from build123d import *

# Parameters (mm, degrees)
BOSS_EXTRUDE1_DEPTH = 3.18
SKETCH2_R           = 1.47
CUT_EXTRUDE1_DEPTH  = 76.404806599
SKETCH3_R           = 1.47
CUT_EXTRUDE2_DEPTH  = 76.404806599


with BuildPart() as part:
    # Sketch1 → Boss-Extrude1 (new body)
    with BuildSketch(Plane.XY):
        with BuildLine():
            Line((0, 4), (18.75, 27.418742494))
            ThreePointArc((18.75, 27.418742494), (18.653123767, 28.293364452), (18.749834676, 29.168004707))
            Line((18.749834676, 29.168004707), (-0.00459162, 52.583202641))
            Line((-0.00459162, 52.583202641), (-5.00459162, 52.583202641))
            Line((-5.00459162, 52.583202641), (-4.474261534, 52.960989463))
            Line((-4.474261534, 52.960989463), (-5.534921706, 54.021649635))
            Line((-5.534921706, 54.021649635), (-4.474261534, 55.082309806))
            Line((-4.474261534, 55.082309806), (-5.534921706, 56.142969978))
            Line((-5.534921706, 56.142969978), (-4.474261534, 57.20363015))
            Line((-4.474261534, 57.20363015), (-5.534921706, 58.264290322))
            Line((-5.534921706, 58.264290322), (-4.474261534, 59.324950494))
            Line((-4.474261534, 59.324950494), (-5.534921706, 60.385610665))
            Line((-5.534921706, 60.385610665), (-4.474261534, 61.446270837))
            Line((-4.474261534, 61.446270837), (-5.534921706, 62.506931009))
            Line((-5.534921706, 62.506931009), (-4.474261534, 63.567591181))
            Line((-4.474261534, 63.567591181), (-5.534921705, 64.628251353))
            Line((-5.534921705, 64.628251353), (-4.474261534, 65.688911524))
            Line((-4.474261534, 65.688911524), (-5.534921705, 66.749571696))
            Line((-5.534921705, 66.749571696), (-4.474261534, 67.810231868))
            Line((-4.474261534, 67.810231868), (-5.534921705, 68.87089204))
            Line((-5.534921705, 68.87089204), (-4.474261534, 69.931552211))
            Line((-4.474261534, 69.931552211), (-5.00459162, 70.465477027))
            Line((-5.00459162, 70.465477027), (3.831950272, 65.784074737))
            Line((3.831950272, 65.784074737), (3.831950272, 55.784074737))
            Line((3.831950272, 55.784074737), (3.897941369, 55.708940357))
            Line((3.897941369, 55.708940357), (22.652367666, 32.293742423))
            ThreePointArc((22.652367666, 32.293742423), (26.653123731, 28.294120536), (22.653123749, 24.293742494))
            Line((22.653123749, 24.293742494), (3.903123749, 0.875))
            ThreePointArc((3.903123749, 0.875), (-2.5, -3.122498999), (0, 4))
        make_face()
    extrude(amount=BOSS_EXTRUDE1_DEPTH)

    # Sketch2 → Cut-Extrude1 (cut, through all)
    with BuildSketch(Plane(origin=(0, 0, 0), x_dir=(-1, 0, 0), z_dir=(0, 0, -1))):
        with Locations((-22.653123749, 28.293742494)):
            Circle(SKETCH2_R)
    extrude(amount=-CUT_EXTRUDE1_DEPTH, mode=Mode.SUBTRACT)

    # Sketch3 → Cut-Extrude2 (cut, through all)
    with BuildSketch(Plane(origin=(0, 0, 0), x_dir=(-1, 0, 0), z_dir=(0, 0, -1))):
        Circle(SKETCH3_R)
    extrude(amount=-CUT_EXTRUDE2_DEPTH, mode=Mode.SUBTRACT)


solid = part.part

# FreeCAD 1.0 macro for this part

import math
import FreeCAD as App
import Part
import Sketcher

V = App.Vector
Q = App.Units.Quantity

doc = App.newDocument("Part")
body = doc.addObject("PartDesign::Body", "Body")

sketch1 = doc.addObject("Sketcher::SketchObject", "Sketch")
body.addObject(sketch1)
sketch1.AttachmentSupport = (doc.XY_Plane, [""])
sketch1.MapMode = "FlatFace"
sketch1.addGeometry([
    Part.LineSegment(V(18.75, 27.42, 0), V(0, 4, 0)),
    Part.ArcOfCircle(Part.Circle(V(0, 0, 0), V(0, 0, 1), 4), math.radians(90), math.radians(373)),
    Part.LineSegment(V(3.9, 0.88, 0), V(22.65, 24.29, 0)),
    Part.ArcOfCircle(Part.Circle(V(22.65, 28.29, 0), V(0, 0, 1), 4), math.radians(-90), math.radians(90)),
    Part.LineSegment(V(22.65, 32.29, 0), V(3.9, 55.71, 0)),
    Part.LineSegment(V(3.9, 55.71, 0), V(3.83, 55.78, 0)),
    Part.LineSegment(V(3.83, 55.78, 0), V(3.83, 65.78, 0)),
    Part.LineSegment(V(3.83, 65.78, 0), V(-5, 70.47, 0)),
    Part.LineSegment(V(-5, 70.47, 0), V(-4.47, 69.93, 0)),
    Part.LineSegment(V(-4.47, 69.93, 0), V(-5.53, 68.87, 0)),
    Part.LineSegment(V(-5.53, 68.87, 0), V(-4.47, 67.81, 0)),
    Part.LineSegment(V(-4.47, 67.81, 0), V(-5.53, 66.75, 0)),
    Part.LineSegment(V(-5.53, 66.75, 0), V(-4.47, 65.69, 0)),
    Part.LineSegment(V(-4.47, 65.69, 0), V(-5.53, 64.63, 0)),
    Part.LineSegment(V(-5.53, 64.63, 0), V(-4.47, 63.57, 0)),
    Part.LineSegment(V(-4.47, 63.57, 0), V(-5.53, 62.51, 0)),
    Part.LineSegment(V(-5.53, 62.51, 0), V(-4.47, 61.45, 0)),
    Part.LineSegment(V(-4.47, 61.45, 0), V(-5.53, 60.39, 0)),
    Part.LineSegment(V(-5.53, 60.39, 0), V(-4.47, 59.32, 0)),
    Part.LineSegment(V(-4.47, 59.32, 0), V(-5.53, 58.26, 0)),
    Part.LineSegment(V(-5.53, 58.26, 0), V(-4.47, 57.2, 0)),
    Part.LineSegment(V(-4.47, 57.2, 0), V(-5.53, 56.14, 0)),
    Part.LineSegment(V(-5.53, 56.14, 0), V(-4.47, 55.08, 0)),
    Part.LineSegment(V(-4.47, 55.08, 0), V(-5.53, 54.02, 0)),
    Part.LineSegment(V(-5.53, 54.02, 0), V(-4.47, 52.96, 0)),
    Part.LineSegment(V(-4.47, 52.96, 0), V(-5, 52.58, 0)),
    Part.LineSegment(V(-5, 52.58, 0), V(0, 52.58, 0)),
    Part.LineSegment(V(0, 52.58, 0), V(18.75, 29.17, 0)),
    Part.ArcOfCircle(Part.Circle(V(22.65, 28.29, 0), V(0, 0, 1), 4), math.radians(167), math.radians(193)),
], False)
sketch1.addConstraint([
    Sketcher.Constraint("Coincident", 0, 2, 1, 1),
    Sketcher.Constraint("Coincident", 1, 2, 2, 1),
    Sketcher.Constraint("Coincident", 2, 2, 3, 1),
    Sketcher.Constraint("Coincident", 3, 2, 4, 1),
    Sketcher.Constraint("Coincident", 4, 2, 5, 1),
    Sketcher.Constraint("Coincident", 5, 2, 6, 1),
    Sketcher.Constraint("Coincident", 6, 2, 7, 1),
    Sketcher.Constraint("Coincident", 7, 2, 8, 1),
    Sketcher.Constraint("Coincident", 8, 2, 9, 1),
    Sketcher.Constraint("Coincident", 9, 2, 10, 1),
    Sketcher.Constraint("Coincident", 10, 2, 11, 1),
    Sketcher.Constraint("Coincident", 11, 2, 12, 1),
    Sketcher.Constraint("Coincident", 12, 2, 13, 1),
    Sketcher.Constraint("Coincident", 13, 2, 14, 1),
    Sketcher.Constraint("Coincident", 14, 2, 15, 1),
    Sketcher.Constraint("Coincident", 15, 2, 16, 1),
    Sketcher.Constraint("Coincident", 16, 2, 17, 1),
    Sketcher.Constraint("Coincident", 17, 2, 18, 1),
    Sketcher.Constraint("Coincident", 18, 2, 19, 1),
    Sketcher.Constraint("Coincident", 19, 2, 20, 1),
    Sketcher.Constraint("Coincident", 20, 2, 21, 1),
    Sketcher.Constraint("Coincident", 21, 2, 22, 1),
    Sketcher.Constraint("Coincident", 22, 2, 23, 1),
    Sketcher.Constraint("Coincident", 23, 2, 24, 1),
    Sketcher.Constraint("Coincident", 24, 2, 25, 1),
    Sketcher.Constraint("Coincident", 25, 2, 26, 1),
    Sketcher.Constraint("Coincident", 26, 2, 27, 1),
    Sketcher.Constraint("Coincident", 27, 2, 28, 1),
    Sketcher.Constraint("Coincident", 28, 2, 0, 1),
    Sketcher.Constraint("Vertical", 6),
    Sketcher.Constraint("Horizontal", 26),
    Sketcher.Constraint("Coincident", 1, 3, -1, 1),
    Sketcher.Constraint("Coincident", 28, 3, 3, 3),
    Sketcher.Constraint("Equal", 1, 3),
    Sketcher.Constraint("Equal", 3, 28),
    Sketcher.Constraint("PointOnObject", 0, 2, -2),
    Sketcher.Constraint("Parallel", 0, 2),
    Sketcher.Constraint("Perpendicular", 9, 10),
    Sketcher.Constraint("Perpendicular", 10, 11),
    Sketcher.Constraint("Perpendicular", 11, 12),
    Sketcher.Constraint("Perpendicular", 12, 13),
    Sketcher.Constraint("Perpendicular", 13, 14),
    Sketcher.Constraint("Perpendicular", 14, 15),
    Sketcher.Constraint("Perpendicular", 15, 16),
    Sketcher.Constraint("Perpendicular", 16, 17),
    Sketcher.Constraint("Perpendicular", 17, 18),
    Sketcher.Constraint("Perpendicular", 18, 19),
    Sketcher.Constraint("Perpendicular", 19, 20),
    Sketcher.Constraint("Perpendicular", 20, 21),
    Sketcher.Constraint("Perpendicular", 21, 22),
    Sketcher.Constraint("Perpendicular", 22, 23),
    Sketcher.Constraint("Perpendicular", 23, 24),
    Sketcher.Constraint("Parallel", 4, 27),
    Sketcher.Constraint("Vertical", 28, 3, 2, 2),
    Sketcher.Constraint("Vertical", 8, 2, 10, 2),
    Sketcher.Constraint("Vertical", 9, 2, 11, 2),
    Sketcher.Constraint("Vertical", 10, 2, 12, 2),
    Sketcher.Constraint("Vertical", 11, 2, 13, 2),
    Sketcher.Constraint("Vertical", 12, 2, 14, 2),
    Sketcher.Constraint("Vertical", 13, 2, 15, 2),
    Sketcher.Constraint("Vertical", 14, 2, 16, 2),
    Sketcher.Constraint("Vertical", 15, 2, 17, 2),
    Sketcher.Constraint("Vertical", 16, 2, 18, 2),
    Sketcher.Constraint("Vertical", 17, 2, 19, 2),
    Sketcher.Constraint("Vertical", 18, 2, 20, 2),
    Sketcher.Constraint("Vertical", 19, 2, 21, 2),
    Sketcher.Constraint("Vertical", 20, 2, 22, 2),
    Sketcher.Constraint("Vertical", 21, 2, 23, 2),
    Sketcher.Constraint("Vertical", 22, 2, 24, 2),
    Sketcher.Constraint("Vertical", 7, 2, 25, 2),
    Sketcher.Constraint("Equal", 2, 4),
    Sketcher.Constraint("Equal", 9, 10),
    Sketcher.Constraint("Equal", 4, 27),
    Sketcher.Constraint("Radius", 1, Q("4 mm")),
    Sketcher.Constraint("DistanceX", 26, 1, 26, 2, Q("5 mm")),
    Sketcher.Constraint("DistanceY", 6, 1, 6, 2, Q("10 mm")),
    Sketcher.Constraint("Distance", 0, Q("30 mm")),
    Sketcher.Constraint("Distance", 7, Q("10 mm")),
    Sketcher.Constraint("Distance", 5, Q("0.1 mm")),
    Sketcher.Constraint("Distance", 9, Q("1.5 mm")),
    Sketcher.Constraint("DistanceX", -1, 1, 28, 2, Q("18.75 mm")),
    Sketcher.Constraint("DistanceY", -1, 1, 1, 2, Q("0.875 mm")),
    Sketcher.Constraint("DistanceX", -1, 1, 4, 2, Q("3.897941 mm")),
    Sketcher.Constraint("DistanceY", -1, 1, 4, 2, Q("55.70894 mm")),
    Sketcher.Constraint("DistanceX", -1, 1, 5, 2, Q("3.83195 mm")),
    Sketcher.Constraint("DistanceX", 7, 2, -1, 1, Q("5.004592 mm")),
    Sketcher.Constraint("DistanceX", 8, 2, -1, 1, Q("4.474262 mm")),
    Sketcher.Constraint("DistanceY", -1, 1, 10, 2, Q("67.810232 mm")),
])
pad1 = doc.addObject("PartDesign::Pad", "Pad")
body.addObject(pad1)
pad1.Profile = sketch1
pad1.Length = 3.18

sketch2 = doc.addObject("Sketcher::SketchObject", "Sketch001")
body.addObject(sketch2)
sketch2.AttachmentSupport = (doc.XY_Plane, [""])
sketch2.MapMode = "FlatFace"
sketch2.addGeometry(Part.Circle(V(22.7, 28.3, 0), V(0, 0, 1), 1.5), False)
sketch2.addConstraint([
    Sketcher.Constraint("Diameter", 0, Q("2.94 mm")),
    Sketcher.Constraint("DistanceX", -1, 1, 0, 3, Q("22.653124 mm")),
    Sketcher.Constraint("DistanceY", -1, 1, 0, 3, Q("28.293742 mm")),
])
pocket1 = doc.addObject("PartDesign::Pocket", "Pocket")
body.addObject(pocket1)
pocket1.Profile = sketch2
pocket1.Type = "ThroughAll"
pocket1.Reversed = True

sketch3 = doc.addObject("Sketcher::SketchObject", "Sketch002")
body.addObject(sketch3)
sketch3.AttachmentSupport = (doc.XY_Plane, [""])
sketch3.MapMode = "FlatFace"
sketch3.addGeometry(Part.Circle(V(0, 0, 0), V(0, 0, 1), 1.5), False)
sketch3.addConstraint([
    Sketcher.Constraint("Coincident", 0, 3, -1, 1),
    Sketcher.Constraint("Diameter", 0, Q("2.94 mm")),
])
pocket2 = doc.addObject("PartDesign::Pocket", "Pocket001")
body.addObject(pocket2)
pocket2.Profile = sketch3
pocket2.Type = "ThroughAll"
pocket2.Reversed = True

doc.recompute()
